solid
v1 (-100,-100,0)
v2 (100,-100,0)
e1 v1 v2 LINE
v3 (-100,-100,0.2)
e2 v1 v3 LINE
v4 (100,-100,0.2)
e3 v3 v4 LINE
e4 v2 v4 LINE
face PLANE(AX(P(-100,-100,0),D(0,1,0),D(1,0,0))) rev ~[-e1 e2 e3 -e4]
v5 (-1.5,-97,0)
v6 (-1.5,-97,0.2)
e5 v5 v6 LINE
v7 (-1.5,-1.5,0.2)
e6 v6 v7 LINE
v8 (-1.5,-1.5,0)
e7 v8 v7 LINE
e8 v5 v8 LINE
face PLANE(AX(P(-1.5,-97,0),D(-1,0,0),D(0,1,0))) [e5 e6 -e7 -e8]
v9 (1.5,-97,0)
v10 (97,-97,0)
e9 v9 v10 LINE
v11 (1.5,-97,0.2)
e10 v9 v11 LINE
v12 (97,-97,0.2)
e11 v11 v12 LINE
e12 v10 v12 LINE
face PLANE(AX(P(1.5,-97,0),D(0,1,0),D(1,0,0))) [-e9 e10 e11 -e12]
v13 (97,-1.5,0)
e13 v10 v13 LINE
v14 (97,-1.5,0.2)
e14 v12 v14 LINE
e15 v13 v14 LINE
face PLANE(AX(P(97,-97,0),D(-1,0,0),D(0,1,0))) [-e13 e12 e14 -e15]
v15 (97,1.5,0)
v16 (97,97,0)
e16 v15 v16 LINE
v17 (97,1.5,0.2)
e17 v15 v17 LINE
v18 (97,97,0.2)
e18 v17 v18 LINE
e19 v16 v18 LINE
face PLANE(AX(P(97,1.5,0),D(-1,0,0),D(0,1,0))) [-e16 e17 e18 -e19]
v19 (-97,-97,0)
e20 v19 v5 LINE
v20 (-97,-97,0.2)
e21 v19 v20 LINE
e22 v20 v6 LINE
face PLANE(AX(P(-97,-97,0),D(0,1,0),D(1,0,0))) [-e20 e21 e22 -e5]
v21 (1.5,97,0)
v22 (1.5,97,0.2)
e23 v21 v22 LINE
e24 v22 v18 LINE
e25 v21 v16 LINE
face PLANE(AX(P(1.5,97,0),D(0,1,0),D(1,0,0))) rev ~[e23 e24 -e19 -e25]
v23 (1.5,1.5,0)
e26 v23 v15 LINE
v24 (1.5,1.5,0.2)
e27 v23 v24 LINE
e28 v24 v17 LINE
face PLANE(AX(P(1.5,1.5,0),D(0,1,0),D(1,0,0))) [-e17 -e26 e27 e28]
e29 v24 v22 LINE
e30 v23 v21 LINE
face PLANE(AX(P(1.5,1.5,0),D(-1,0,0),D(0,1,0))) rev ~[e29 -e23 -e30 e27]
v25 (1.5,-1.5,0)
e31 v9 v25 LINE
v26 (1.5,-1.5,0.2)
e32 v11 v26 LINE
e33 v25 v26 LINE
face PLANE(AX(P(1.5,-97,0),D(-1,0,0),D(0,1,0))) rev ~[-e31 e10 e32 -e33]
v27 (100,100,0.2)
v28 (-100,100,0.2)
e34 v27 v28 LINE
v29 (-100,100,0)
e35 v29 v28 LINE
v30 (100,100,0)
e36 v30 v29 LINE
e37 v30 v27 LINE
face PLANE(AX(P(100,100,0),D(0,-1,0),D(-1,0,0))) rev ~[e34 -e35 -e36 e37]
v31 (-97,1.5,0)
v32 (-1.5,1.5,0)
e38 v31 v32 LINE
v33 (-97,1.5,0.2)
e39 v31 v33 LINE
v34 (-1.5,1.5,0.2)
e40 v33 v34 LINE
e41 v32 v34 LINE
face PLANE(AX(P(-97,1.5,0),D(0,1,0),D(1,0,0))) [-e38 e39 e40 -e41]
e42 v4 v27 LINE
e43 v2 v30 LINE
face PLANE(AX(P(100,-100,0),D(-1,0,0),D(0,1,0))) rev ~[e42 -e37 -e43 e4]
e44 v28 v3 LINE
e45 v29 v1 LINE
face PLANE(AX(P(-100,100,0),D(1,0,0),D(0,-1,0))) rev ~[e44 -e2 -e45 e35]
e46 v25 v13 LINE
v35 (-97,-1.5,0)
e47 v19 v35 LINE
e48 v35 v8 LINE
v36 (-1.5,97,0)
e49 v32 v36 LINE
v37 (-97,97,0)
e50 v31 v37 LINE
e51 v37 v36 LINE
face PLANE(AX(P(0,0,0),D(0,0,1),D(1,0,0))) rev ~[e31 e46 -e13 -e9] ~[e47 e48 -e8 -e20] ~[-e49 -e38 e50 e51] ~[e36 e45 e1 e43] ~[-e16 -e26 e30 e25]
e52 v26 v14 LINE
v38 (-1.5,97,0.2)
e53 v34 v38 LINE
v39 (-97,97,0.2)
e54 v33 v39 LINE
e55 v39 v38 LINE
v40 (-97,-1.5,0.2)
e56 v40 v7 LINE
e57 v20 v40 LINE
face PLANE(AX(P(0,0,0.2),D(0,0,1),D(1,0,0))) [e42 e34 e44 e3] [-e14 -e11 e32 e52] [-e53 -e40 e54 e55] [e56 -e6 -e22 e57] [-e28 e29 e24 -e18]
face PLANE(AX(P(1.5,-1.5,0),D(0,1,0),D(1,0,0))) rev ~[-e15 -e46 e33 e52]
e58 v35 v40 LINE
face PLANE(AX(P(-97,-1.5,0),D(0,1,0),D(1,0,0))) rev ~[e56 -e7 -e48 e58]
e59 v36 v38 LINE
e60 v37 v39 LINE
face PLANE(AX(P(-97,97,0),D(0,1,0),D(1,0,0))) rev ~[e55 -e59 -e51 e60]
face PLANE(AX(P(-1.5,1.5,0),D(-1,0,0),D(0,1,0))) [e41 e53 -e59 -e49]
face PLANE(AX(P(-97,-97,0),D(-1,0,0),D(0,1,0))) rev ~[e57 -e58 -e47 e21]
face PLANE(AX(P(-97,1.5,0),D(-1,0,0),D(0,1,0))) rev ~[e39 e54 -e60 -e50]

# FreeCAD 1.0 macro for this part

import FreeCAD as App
import Part
import Sketcher
from FreeCAD import Vector
Q = App.Units.Quantity


def add_polygon(sketch, points):
    """Adds a closed chain of lines whose ends are joined by coincident constraints."""
    first, n = sketch.GeometryCount, len(points)
    for a, b in zip(points, points[1:] + points[:1]):
        sketch.addGeometry(Part.LineSegment(App.Vector(*a, 0), App.Vector(*b, 0)), False)
    for i in range(n):
        sketch.addConstraint(Sketcher.Constraint("Coincident", first + i, 2, first + (i + 1) % n, 1))

doc = App.newDocument("Part")
params = doc.addObject("Spreadsheet::Sheet", "Params")
for row, (alias, value) in enumerate([
    ("sketch1_width", "200 mm"),
    ("sketch1_width2", "95.5 mm"),
    ("pad1_length", "0.2 mm"),
], start=1):
    params.set(f"A{row}", alias)
    params.set(f"B{row}", "=" + value)
    params.setAlias(f"B{row}", alias)

body = doc.addObject("PartDesign::Body", "Body")

# Sketch on XY plane
sketch1 = body.newObject("Sketcher::SketchObject", "Sketch")
sketch1.AttachmentSupport = (doc.getObject("XY_Plane"), [""])
sketch1.MapMode = "FlatFace"
add_polygon(sketch1, [(100, -100), (100, 100), (-100, 100), (-100, -100)])  # lines 0-3
add_polygon(sketch1, [(-2, -97), (-97, -97), (-97, -2), (-2, -2)])  # lines 4-7
add_polygon(sketch1, [(97, -97), (2, -97), (2, -2), (97, -2)])  # lines 8-11
add_polygon(sketch1, [(-2, 2), (-97, 2), (-97, 97), (-2, 97)])  # lines 12-15
add_polygon(sketch1, [(97, 2), (2, 2), (2, 97), (97, 97)])  # lines 16-19
sketch1.addConstraint([
    Sketcher.Constraint("Vertical", 0),
    Sketcher.Constraint("Horizontal", 1),
    Sketcher.Constraint("Vertical", 2),
    Sketcher.Constraint("Horizontal", 3),
    Sketcher.Constraint("Horizontal", 4),
    Sketcher.Constraint("Vertical", 5),
    Sketcher.Constraint("Horizontal", 6),
    Sketcher.Constraint("Vertical", 7),
    Sketcher.Constraint("Horizontal", 8),
    Sketcher.Constraint("Vertical", 9),
    Sketcher.Constraint("Horizontal", 10),
    Sketcher.Constraint("Vertical", 11),
    Sketcher.Constraint("Horizontal", 12),
    Sketcher.Constraint("Vertical", 13),
    Sketcher.Constraint("Horizontal", 14),
    Sketcher.Constraint("Vertical", 15),
    Sketcher.Constraint("Horizontal", 16),
    Sketcher.Constraint("Vertical", 17),
    Sketcher.Constraint("Horizontal", 18),
    Sketcher.Constraint("Vertical", 19),
    Sketcher.Constraint("Symmetric", 0, 2, 2, 2, -1, 1),
    Sketcher.Constraint("Symmetric", 10, 2, 12, 2, -1, 1),
    Sketcher.Constraint("Symmetric", 8, 2, 14, 2, -1, 1),
    Sketcher.Constraint("Symmetric", 6, 2, 16, 2, -1, 1),
    Sketcher.Constraint("Symmetric", 4, 2, 18, 2, -1, 1),
    Sketcher.Constraint("Symmetric", 7, 2, 8, 2, -2),
    Sketcher.Constraint("Symmetric", 5, 2, 10, 2, -2),
    Sketcher.Constraint("Equal", 3, 0),
    Sketcher.Constraint("Equal", 18, 5),
    Sketcher.Constraint("DistanceX", 1, 2, 1, 1, Q("200 mm")),
    Sketcher.Constraint("DistanceX", 4, 2, 4, 1, Q("95.5 mm")),
    Sketcher.Constraint("DistanceX", 4, 2, -1, 1, Q("97 mm")),
    Sketcher.Constraint("DistanceY", 4, 2, -1, 1, Q("97 mm")),
])
sketch1.setExpression("Constraints[49]", "Params.sketch1_width")
sketch1.setExpression("Constraints[50]", "Params.sketch1_width2")
pad1 = body.newObject("PartDesign::Pad", "Pad")
pad1.Profile = sketch1
pad1.setExpression("Length", "Params.pad1_length")

doc.recompute()
